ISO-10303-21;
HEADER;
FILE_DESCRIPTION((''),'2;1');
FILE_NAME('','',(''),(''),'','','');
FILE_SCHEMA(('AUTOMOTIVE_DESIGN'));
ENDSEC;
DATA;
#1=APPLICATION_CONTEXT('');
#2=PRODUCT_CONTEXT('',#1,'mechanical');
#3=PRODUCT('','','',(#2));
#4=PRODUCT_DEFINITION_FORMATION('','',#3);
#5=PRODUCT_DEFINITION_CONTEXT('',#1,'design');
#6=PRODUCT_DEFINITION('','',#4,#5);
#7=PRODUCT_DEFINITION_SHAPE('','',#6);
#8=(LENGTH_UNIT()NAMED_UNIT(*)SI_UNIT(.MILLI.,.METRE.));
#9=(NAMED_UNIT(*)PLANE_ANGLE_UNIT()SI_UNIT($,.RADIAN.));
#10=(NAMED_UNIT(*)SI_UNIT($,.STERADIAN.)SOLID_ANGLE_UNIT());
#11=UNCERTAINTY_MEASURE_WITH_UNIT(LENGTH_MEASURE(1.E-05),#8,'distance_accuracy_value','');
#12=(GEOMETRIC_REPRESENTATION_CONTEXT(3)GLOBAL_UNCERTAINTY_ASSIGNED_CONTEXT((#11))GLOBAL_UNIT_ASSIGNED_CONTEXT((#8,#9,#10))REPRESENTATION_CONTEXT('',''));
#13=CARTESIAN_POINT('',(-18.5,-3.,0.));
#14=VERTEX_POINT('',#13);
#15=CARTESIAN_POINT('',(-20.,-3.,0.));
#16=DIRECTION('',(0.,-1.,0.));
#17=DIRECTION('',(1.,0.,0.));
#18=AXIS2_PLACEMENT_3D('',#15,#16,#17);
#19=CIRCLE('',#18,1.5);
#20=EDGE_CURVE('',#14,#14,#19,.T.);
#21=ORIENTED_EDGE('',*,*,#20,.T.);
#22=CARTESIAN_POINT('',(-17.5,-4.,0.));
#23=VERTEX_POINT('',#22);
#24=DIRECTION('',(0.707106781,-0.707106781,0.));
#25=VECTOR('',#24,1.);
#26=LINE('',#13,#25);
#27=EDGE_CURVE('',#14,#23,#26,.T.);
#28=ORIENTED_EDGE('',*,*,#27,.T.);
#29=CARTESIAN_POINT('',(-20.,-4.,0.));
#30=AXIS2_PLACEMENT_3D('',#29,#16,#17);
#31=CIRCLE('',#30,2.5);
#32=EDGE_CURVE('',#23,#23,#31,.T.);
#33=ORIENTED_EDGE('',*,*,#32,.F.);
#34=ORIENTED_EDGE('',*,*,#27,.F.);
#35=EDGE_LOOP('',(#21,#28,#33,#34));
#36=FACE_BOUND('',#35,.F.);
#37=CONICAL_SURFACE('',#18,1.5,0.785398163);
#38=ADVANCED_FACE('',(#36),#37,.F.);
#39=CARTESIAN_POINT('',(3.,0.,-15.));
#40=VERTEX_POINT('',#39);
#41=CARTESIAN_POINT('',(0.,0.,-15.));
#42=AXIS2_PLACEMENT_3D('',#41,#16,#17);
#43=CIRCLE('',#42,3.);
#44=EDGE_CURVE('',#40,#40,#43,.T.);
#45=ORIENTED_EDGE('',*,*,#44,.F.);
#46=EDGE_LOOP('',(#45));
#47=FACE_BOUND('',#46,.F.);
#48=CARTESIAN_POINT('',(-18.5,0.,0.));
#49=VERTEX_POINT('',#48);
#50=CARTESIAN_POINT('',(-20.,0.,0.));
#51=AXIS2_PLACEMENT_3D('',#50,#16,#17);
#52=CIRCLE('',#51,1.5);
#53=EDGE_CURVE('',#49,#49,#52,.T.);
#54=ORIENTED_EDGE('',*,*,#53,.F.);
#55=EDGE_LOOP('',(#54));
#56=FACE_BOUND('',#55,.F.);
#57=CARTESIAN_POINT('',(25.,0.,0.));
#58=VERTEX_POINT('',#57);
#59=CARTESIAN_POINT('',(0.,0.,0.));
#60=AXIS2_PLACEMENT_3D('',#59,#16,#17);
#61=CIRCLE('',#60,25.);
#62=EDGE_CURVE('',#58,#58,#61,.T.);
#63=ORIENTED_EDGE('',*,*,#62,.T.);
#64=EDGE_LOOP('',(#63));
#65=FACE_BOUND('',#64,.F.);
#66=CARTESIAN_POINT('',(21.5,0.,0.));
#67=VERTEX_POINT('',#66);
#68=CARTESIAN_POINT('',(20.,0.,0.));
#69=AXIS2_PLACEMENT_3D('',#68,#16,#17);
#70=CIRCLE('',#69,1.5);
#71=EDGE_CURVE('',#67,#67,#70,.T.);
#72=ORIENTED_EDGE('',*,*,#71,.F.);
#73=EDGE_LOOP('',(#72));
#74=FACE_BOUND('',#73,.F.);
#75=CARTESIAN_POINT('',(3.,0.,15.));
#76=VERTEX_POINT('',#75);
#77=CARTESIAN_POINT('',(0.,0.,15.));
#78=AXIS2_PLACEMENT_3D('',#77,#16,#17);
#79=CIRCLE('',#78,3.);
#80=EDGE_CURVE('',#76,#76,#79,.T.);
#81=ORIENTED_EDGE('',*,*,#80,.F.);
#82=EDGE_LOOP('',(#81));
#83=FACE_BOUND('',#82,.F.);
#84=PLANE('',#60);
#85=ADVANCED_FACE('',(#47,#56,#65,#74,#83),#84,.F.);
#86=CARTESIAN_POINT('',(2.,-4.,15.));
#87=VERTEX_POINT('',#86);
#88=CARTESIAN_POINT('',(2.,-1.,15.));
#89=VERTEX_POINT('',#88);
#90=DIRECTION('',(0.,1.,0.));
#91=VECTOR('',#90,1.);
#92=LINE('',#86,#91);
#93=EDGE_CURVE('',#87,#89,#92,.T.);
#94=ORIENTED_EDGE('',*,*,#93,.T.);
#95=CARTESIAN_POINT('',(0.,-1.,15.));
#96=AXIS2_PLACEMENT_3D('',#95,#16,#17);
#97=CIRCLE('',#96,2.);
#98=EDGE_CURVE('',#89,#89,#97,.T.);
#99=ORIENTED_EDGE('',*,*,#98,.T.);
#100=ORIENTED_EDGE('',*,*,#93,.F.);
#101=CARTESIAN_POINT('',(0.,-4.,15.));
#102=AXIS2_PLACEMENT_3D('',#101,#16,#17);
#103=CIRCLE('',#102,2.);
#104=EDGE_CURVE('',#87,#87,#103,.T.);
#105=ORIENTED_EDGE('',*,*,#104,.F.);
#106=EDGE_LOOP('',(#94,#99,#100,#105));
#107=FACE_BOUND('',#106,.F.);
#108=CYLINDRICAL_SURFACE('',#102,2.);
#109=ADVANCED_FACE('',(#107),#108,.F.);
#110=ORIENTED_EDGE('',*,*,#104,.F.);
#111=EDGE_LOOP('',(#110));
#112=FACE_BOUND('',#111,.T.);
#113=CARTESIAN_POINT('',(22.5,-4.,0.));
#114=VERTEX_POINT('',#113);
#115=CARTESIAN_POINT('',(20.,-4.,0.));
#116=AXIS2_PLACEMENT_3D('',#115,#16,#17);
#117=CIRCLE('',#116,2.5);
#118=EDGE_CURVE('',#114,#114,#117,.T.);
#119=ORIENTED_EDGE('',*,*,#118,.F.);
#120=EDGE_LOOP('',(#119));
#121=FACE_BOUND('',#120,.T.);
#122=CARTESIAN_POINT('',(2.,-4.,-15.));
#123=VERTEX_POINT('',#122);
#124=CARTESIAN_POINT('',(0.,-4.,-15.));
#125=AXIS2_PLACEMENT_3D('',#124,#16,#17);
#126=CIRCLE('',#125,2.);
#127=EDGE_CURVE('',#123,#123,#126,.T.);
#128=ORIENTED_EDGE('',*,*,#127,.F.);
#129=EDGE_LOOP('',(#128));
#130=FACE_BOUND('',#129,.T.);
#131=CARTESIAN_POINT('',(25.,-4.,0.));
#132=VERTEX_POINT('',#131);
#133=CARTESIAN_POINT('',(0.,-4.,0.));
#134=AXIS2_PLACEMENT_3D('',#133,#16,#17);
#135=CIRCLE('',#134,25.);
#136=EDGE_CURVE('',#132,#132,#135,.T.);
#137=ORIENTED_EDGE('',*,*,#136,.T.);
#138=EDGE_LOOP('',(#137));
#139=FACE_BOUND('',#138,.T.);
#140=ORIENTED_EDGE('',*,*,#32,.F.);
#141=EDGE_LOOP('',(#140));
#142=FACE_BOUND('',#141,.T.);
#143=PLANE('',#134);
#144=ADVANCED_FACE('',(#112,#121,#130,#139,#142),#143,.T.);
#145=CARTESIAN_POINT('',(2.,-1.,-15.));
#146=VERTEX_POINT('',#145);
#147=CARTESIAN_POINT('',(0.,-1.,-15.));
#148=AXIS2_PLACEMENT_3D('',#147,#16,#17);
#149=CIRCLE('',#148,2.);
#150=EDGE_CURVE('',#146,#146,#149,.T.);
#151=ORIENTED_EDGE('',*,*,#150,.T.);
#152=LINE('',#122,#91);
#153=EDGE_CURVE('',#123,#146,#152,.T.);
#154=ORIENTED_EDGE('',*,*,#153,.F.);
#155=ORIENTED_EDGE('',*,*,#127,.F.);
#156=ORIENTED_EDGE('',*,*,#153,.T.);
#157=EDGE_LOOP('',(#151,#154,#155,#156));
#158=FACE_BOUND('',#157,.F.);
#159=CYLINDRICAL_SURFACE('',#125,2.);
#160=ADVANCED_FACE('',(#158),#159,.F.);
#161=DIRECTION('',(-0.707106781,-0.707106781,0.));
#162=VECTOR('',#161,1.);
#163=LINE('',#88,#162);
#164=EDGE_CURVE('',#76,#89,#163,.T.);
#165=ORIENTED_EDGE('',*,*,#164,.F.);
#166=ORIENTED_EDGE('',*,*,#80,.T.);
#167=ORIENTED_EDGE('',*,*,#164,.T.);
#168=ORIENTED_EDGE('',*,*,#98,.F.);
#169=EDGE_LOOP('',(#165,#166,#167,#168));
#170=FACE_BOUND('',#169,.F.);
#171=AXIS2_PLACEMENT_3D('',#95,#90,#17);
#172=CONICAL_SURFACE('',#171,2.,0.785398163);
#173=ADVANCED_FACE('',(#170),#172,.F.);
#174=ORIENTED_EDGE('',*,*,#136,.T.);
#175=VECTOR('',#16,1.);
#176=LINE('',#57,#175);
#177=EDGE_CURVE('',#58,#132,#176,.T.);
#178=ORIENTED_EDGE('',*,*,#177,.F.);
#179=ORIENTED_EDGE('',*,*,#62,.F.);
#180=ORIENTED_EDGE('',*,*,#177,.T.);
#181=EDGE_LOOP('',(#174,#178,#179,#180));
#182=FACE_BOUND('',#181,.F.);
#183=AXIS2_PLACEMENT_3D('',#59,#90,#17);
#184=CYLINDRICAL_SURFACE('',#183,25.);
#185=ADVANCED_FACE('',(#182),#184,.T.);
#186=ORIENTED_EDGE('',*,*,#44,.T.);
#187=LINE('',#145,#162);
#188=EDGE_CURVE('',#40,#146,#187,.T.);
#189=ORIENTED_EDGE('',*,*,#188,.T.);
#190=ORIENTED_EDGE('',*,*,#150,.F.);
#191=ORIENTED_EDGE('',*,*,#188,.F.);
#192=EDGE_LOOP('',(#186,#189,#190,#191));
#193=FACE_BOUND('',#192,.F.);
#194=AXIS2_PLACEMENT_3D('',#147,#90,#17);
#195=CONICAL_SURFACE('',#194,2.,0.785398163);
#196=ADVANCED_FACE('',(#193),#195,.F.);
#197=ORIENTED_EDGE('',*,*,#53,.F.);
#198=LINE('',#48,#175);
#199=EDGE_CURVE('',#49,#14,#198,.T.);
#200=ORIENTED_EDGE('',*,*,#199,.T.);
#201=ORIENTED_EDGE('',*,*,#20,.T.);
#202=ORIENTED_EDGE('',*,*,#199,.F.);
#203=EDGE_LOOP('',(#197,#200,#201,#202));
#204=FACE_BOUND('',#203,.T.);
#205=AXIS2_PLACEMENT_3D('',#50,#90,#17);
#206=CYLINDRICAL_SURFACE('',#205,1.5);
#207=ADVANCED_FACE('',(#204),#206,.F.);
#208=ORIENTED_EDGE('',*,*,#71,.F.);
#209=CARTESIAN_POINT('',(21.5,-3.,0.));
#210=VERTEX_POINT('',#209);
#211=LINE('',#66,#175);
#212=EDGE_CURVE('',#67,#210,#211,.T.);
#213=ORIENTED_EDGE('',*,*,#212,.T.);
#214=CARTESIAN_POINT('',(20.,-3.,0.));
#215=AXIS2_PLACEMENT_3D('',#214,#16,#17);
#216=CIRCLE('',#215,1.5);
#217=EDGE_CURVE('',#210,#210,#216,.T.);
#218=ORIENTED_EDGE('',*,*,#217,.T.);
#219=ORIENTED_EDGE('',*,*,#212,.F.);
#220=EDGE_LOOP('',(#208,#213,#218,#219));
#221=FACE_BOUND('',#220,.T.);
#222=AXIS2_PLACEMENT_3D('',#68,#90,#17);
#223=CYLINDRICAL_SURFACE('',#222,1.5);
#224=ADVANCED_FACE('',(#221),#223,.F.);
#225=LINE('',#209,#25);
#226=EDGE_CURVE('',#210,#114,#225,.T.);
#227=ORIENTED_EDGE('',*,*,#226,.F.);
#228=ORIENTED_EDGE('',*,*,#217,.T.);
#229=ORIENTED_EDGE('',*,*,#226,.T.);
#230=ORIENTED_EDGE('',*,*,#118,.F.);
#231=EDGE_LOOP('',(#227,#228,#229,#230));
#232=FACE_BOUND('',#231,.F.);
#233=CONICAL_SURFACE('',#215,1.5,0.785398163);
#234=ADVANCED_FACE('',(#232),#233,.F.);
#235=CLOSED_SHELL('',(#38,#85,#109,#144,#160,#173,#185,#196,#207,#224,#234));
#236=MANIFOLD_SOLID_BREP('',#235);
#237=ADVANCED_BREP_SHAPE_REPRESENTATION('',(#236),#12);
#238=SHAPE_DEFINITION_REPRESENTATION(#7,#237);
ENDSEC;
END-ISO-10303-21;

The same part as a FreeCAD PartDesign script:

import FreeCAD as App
import Part
import Sketcher
from FreeCAD import Vector


def edges_at(feature, points):
    """Names of the edges that pass closest to the given points."""
    edges = feature.Shape.Edges
    near = lambda p: min(range(len(edges)), key=lambda i: edges[i].distToShape(Part.Vertex(*p))[0])
    return sorted({f"Edge{near(p) + 1}" for p in points})

doc = App.newDocument("Part")
params = doc.addObject("Spreadsheet::Sheet", "Params")
for row, (alias, value) in enumerate([
    ("sketch1_diameter", "50 mm"),
    ("sketch1_diameter2", "3 mm"),
    ("pad1_length", "4 mm"),
    ("chamfer_size", "1 mm"),
    ("sketch2_diameter", "4 mm"),
    ("chamfer2_size", "1 mm"),
], start=1):
    params.set(f"A{row}", alias)
    params.set(f"B{row}", "=" + value)
    params.setAlias(f"B{row}", alias)

body = doc.addObject("PartDesign::Body", "Body")

# Sketch on XZ plane
sketch1 = body.newObject("Sketcher::SketchObject", "Sketch")
sketch1.AttachmentSupport = (doc.getObject("XZ_Plane"), [""])
sketch1.MapMode = "FlatFace"
sketch1.addGeometry([
    Part.Circle(Vector(0, 0, 0), Vector(0, 0, 1), 25),
    Part.Circle(Vector(-20, 0, 0), Vector(0, 0, 1), 1.5),
    Part.Circle(Vector(20, 0, 0), Vector(0, 0, 1), 1.5),
], False)
sketch1.addConstraint([
    Sketcher.Constraint("Coincident", 0, 3, -1, 1),
    Sketcher.Constraint("Equal", 1, 2),
    Sketcher.Constraint("Symmetric", 1, 3, 2, 3, -1, 1),
    Sketcher.Constraint("PointOnObject", 1, 3, -1),
    Sketcher.Constraint("Diameter", 0, 50.0),
    Sketcher.Constraint("Diameter", 1, 3.0),
    Sketcher.Constraint("DistanceX", 1, 3, -1, 1, 20.0),
])
sketch1.setExpression("Constraints[4]", "Params.sketch1_diameter")
sketch1.setExpression("Constraints[5]", "Params.sketch1_diameter2")
pad1 = body.newObject("PartDesign::Pad", "Pad")
pad1.Profile = sketch1
pad1.setExpression("Length", "Params.pad1_length")
doc.recompute()

chamfer = body.newObject("PartDesign::Chamfer", "Chamfer")
chamfer.Base = (pad1, edges_at(pad1, [(-21.5, -4, 0), (18.5, -4, 0)]))
chamfer.setExpression("Size", "Params.chamfer_size")

# Sketch on XZ plane
sketch2 = body.newObject("Sketcher::SketchObject", "Sketch001")
sketch2.AttachmentSupport = (doc.getObject("XZ_Plane"), [""])
sketch2.MapMode = "FlatFace"
sketch2.AttachmentOffset = App.Placement(Vector(0, 0, 4), App.Rotation())
sketch2.addGeometry([
    Part.Circle(Vector(0, 15, 0), Vector(0, 0, 1), 2),
    Part.Circle(Vector(0, -15, 0), Vector(0, 0, 1), 2),
], False)
sketch2.addConstraint([
    Sketcher.Constraint("Equal", 0, 1),
    Sketcher.Constraint("Symmetric", 0, 3, 1, 3, -1, 1),
    Sketcher.Constraint("PointOnObject", 0, 3, -2),
    Sketcher.Constraint("Diameter", 0, 4.0),
    Sketcher.Constraint("DistanceY", -1, 1, 0, 3, 15.0),
])
sketch2.setExpression("Constraints[3]", "Params.sketch2_diameter")
pocket1 = body.newObject("PartDesign::Pocket", "Pocket")
pocket1.Profile = sketch2
pocket1.Type = "ThroughAll"
doc.recompute()

chamfer2 = body.newObject("PartDesign::Chamfer", "Chamfer001")
chamfer2.Base = (pocket1, edges_at(pocket1, [(-2, 0, 15), (-2, 0, -15)]))
chamfer2.setExpression("Size", "Params.chamfer2_size")

doc.recompute()
